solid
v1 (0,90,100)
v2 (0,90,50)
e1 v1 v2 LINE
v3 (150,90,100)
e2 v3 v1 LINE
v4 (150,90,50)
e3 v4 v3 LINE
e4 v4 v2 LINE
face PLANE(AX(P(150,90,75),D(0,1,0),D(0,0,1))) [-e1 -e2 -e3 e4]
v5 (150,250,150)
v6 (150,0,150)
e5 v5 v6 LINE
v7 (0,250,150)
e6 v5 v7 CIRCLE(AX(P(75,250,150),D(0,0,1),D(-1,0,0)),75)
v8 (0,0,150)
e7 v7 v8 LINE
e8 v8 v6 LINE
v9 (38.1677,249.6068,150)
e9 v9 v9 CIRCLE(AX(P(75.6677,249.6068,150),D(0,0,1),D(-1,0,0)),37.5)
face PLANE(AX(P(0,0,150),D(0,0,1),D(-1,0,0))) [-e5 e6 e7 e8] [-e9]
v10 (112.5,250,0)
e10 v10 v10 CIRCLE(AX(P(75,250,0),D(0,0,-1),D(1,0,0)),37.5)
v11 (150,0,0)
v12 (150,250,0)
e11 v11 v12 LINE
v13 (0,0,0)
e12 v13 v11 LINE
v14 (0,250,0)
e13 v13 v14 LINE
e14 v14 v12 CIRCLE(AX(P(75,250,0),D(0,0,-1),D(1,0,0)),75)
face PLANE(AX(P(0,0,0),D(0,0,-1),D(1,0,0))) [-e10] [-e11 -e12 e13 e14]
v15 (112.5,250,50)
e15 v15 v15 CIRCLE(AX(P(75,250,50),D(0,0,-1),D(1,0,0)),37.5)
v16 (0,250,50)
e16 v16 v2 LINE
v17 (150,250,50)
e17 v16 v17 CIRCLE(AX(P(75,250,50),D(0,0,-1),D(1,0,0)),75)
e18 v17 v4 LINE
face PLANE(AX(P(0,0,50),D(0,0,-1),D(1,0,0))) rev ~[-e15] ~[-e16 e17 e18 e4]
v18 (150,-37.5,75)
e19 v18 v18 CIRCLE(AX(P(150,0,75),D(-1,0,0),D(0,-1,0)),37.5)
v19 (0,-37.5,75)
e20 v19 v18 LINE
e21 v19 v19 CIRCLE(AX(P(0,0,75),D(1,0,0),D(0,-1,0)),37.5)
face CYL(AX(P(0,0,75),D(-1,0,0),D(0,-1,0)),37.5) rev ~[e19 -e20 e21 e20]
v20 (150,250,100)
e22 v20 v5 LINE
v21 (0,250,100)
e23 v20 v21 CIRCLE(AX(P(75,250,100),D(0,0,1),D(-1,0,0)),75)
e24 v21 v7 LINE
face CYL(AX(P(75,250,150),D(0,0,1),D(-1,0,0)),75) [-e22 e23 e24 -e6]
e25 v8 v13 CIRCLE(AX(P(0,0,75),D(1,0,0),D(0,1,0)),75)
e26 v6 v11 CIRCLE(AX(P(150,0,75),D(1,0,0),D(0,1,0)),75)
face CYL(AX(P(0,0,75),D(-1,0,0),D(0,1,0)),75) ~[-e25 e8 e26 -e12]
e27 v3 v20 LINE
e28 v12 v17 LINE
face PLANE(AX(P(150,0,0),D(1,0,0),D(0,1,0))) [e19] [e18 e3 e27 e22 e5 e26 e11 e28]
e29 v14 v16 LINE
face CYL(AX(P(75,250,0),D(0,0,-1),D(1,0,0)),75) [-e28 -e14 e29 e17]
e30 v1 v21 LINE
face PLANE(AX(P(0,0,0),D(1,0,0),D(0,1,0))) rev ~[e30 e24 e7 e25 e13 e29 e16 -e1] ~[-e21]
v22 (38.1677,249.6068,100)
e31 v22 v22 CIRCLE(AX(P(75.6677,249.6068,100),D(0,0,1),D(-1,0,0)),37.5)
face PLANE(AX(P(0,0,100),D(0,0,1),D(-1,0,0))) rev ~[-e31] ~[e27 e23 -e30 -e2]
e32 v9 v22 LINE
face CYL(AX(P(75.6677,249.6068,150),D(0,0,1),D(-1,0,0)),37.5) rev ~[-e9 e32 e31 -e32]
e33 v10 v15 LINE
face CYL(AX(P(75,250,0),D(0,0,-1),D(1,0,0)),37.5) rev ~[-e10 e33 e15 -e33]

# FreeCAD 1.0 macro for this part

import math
import FreeCAD as App
import Part
import Sketcher

doc = App.newDocument("Part")
body = doc.addObject("PartDesign::Body", "Body")

sketch1 = body.newObject("Sketcher::SketchObject", "Sketch")
sketch1.AttachmentSupport = (doc.getObject("YZ_Plane"), [""])
sketch1.MapMode = "FlatFace"
sketch1.addGeometry(Part.LineSegment(App.Vector(250, 150, 0), App.Vector(0, 150, 0)), False)
sketch1.addGeometry(Part.ArcOfCircle(Part.Circle(App.Vector(0, 75, 0), App.Vector(0, 0, 1), 75), math.radians(90), math.radians(270)), False)
sketch1.addGeometry(Part.LineSegment(App.Vector(0, 0, 0), App.Vector(250, 0, 0)), False)
sketch1.addGeometry(Part.LineSegment(App.Vector(250, 0, 0), App.Vector(250, 150, 0)), False)
sketch1.addConstraint(Sketcher.Constraint("Tangent", 0, 2, 1, 1))
sketch1.addConstraint(Sketcher.Constraint("Tangent", 1, 2, 2, 1))
sketch1.addConstraint(Sketcher.Constraint("Coincident", 2, 2, 3, 1))
sketch1.addConstraint(Sketcher.Constraint("Coincident", 3, 2, 0, 1))
sketch1.addConstraint(Sketcher.Constraint("Horizontal", 0))
sketch1.addConstraint(Sketcher.Constraint("Horizontal", 2))
sketch1.addConstraint(Sketcher.Constraint("Vertical", 3))
sketch1.addConstraint(Sketcher.Constraint("Coincident", 1, 2, -1, 1))
sketch1.addConstraint(Sketcher.Constraint("Radius", 1, 75.0))
sketch1.addConstraint(Sketcher.Constraint("DistanceX", 0, 2, 0, 1, 250.0))
pad1 = body.newObject("PartDesign::Pad", "Pad")
pad1.Profile = sketch1
pad1.Length = 150

sketch2 = body.newObject("Sketcher::SketchObject", "Sketch001")
sketch2.AttachmentSupport = (doc.getObject("YZ_Plane"), [""])
sketch2.MapMode = "FlatFace"
sketch2.addGeometry(Part.Circle(App.Vector(0, 75, 0), App.Vector(0, 0, 1), 37.5), False)
sketch2.addConstraint(Sketcher.Constraint("PointOnObject", 0, 3, -2))
sketch2.addConstraint(Sketcher.Constraint("Diameter", 0, 75.0))
sketch2.addConstraint(Sketcher.Constraint("DistanceY", -1, 1, 0, 3, 75.0))
pocket1 = body.newObject("PartDesign::Pocket", "Pocket")
pocket1.Profile = sketch2
pocket1.Length = 150
pocket1.Reversed = True

sketch3 = body.newObject("Sketcher::SketchObject", "Sketch002")
sketch3.AttachmentSupport = (doc.getObject("YZ_Plane"), [""])
sketch3.MapMode = "FlatFace"
sketch3.AttachmentOffset = App.Placement(App.Vector(0, 0, 150), App.Rotation())
sketch3.addGeometry(Part.LineSegment(App.Vector(250, 50, 0), App.Vector(250, 100, 0)), False)
sketch3.addGeometry(Part.LineSegment(App.Vector(250, 100, 0), App.Vector(90, 100, 0)), False)
sketch3.addGeometry(Part.LineSegment(App.Vector(90, 100, 0), App.Vector(90, 50, 0)), False)
sketch3.addGeometry(Part.LineSegment(App.Vector(90, 50, 0), App.Vector(250, 50, 0)), False)
sketch3.addConstraint(Sketcher.Constraint("Coincident", 0, 2, 1, 1))
sketch3.addConstraint(Sketcher.Constraint("Coincident", 1, 2, 2, 1))
sketch3.addConstraint(Sketcher.Constraint("Coincident", 2, 2, 3, 1))
sketch3.addConstraint(Sketcher.Constraint("Coincident", 3, 2, 0, 1))
sketch3.addConstraint(Sketcher.Constraint("Vertical", 0))
sketch3.addConstraint(Sketcher.Constraint("Horizontal", 1))
sketch3.addConstraint(Sketcher.Constraint("Vertical", 2))
sketch3.addConstraint(Sketcher.Constraint("Horizontal", 3))
sketch3.addConstraint(Sketcher.Constraint("DistanceX", 1, 2, 1, 1, 160.0))
sketch3.addConstraint(Sketcher.Constraint("DistanceY", 0, 1, 0, 2, 50.0))
sketch3.addConstraint(Sketcher.Constraint("DistanceX", -1, 1, 0, 2, 250.0))
sketch3.addConstraint(Sketcher.Constraint("DistanceY", -1, 1, 0, 2, 100.0))
pocket2 = body.newObject("PartDesign::Pocket", "Pocket001")
pocket2.Profile = sketch3
pocket2.Length = 150

sketch4 = body.newObject("Sketcher::SketchObject", "Sketch003")
sketch4.AttachmentSupport = (doc.getObject("XY_Plane"), [""])
sketch4.MapMode = "FlatFace"
sketch4.addGeometry(Part.LineSegment(App.Vector(150, 250, 0), App.Vector(0, 250, 0)), False)
sketch4.addGeometry(Part.ArcOfCircle(Part.Circle(App.Vector(75, 250, 0), App.Vector(0, 0, 1), 75), math.radians(0), math.radians(180)), False)
sketch4.addConstraint(Sketcher.Constraint("Coincident", 0, 1, 1, 1))
sketch4.addConstraint(Sketcher.Constraint("Coincident", 1, 2, 0, 2))
sketch4.addConstraint(Sketcher.Constraint("Horizontal", 0))
sketch4.addConstraint(Sketcher.Constraint("PointOnObject", 1, 2, -2))
sketch4.addConstraint(Sketcher.Constraint("Horizontal", 1, 3, 0, 1))
sketch4.addConstraint(Sketcher.Constraint("Radius", 1, 75.0))
sketch4.addConstraint(Sketcher.Constraint("DistanceY", -1, 1, 1, 3, 250.0))
pad2 = body.newObject("PartDesign::Pad", "Pad001")
pad2.Profile = sketch4
pad2.Length = 50

sketch5 = body.newObject("Sketcher::SketchObject", "Sketch004")
sketch5.AttachmentSupport = (doc.getObject("XY_Plane"), [""])
sketch5.MapMode = "FlatFace"
sketch5.AttachmentOffset = App.Placement(App.Vector(0, 0, 150), App.Rotation())
sketch5.addGeometry(Part.ArcOfCircle(Part.Circle(App.Vector(75, 250, 0), App.Vector(0, 0, 1), 75), math.radians(0), math.radians(180)), False)
sketch5.addGeometry(Part.LineSegment(App.Vector(0, 250, 0), App.Vector(150, 250, 0)), False)
sketch5.addConstraint(Sketcher.Constraint("Coincident", 0, 1, 1, 2))
sketch5.addConstraint(Sketcher.Constraint("Coincident", 1, 1, 0, 2))
sketch5.addConstraint(Sketcher.Constraint("Horizontal", 1))
sketch5.addConstraint(Sketcher.Constraint("PointOnObject", 1, 1, -2))
sketch5.addConstraint(Sketcher.Constraint("Radius", 0, 75.0))
sketch5.addConstraint(Sketcher.Constraint("DistanceY", -1, 1, 0, 3, 250.0))
sketch5.addConstraint(Sketcher.Constraint("DistanceY", -1, 1, 0, 1, 250.0))
pad3 = body.newObject("PartDesign::Pad", "Pad002")
pad3.Profile = sketch5
pad3.Length = 50
pad3.Reversed = True

sketch6 = body.newObject("Sketcher::SketchObject", "Sketch005")
sketch6.AttachmentSupport = (doc.getObject("XY_Plane"), [""])
sketch6.MapMode = "FlatFace"
sketch6.AttachmentOffset = App.Placement(App.Vector(0, 0, 150), App.Rotation())
sketch6.addGeometry(Part.Circle(App.Vector(75.6677, 249.6068, 0), App.Vector(0, 0, 1), 37.5), False)
sketch6.addConstraint(Sketcher.Constraint("Diameter", 0, 75.0))
sketch6.addConstraint(Sketcher.Constraint("DistanceX", -1, 1, 0, 3, 75.6677))
sketch6.addConstraint(Sketcher.Constraint("DistanceY", -1, 1, 0, 3, 249.6068))
pocket3 = body.newObject("PartDesign::Pocket", "Pocket002")
pocket3.Profile = sketch6
pocket3.Length = 50

sketch7 = body.newObject("Sketcher::SketchObject", "Sketch006")
sketch7.AttachmentSupport = (doc.getObject("XY_Plane"), [""])
sketch7.MapMode = "FlatFace"
sketch7.addGeometry(Part.Circle(App.Vector(75, 250, 0), App.Vector(0, 0, 1), 37.5), False)
sketch7.addConstraint(Sketcher.Constraint("Diameter", 0, 75.0))
sketch7.addConstraint(Sketcher.Constraint("DistanceX", -1, 1, 0, 3, 75.0))
sketch7.addConstraint(Sketcher.Constraint("DistanceY", -1, 1, 0, 3, 250.0))
pocket4 = body.newObject("PartDesign::Pocket", "Pocket003")
pocket4.Profile = sketch7
pocket4.Length = 50
pocket4.Reversed = True

doc.recompute()
